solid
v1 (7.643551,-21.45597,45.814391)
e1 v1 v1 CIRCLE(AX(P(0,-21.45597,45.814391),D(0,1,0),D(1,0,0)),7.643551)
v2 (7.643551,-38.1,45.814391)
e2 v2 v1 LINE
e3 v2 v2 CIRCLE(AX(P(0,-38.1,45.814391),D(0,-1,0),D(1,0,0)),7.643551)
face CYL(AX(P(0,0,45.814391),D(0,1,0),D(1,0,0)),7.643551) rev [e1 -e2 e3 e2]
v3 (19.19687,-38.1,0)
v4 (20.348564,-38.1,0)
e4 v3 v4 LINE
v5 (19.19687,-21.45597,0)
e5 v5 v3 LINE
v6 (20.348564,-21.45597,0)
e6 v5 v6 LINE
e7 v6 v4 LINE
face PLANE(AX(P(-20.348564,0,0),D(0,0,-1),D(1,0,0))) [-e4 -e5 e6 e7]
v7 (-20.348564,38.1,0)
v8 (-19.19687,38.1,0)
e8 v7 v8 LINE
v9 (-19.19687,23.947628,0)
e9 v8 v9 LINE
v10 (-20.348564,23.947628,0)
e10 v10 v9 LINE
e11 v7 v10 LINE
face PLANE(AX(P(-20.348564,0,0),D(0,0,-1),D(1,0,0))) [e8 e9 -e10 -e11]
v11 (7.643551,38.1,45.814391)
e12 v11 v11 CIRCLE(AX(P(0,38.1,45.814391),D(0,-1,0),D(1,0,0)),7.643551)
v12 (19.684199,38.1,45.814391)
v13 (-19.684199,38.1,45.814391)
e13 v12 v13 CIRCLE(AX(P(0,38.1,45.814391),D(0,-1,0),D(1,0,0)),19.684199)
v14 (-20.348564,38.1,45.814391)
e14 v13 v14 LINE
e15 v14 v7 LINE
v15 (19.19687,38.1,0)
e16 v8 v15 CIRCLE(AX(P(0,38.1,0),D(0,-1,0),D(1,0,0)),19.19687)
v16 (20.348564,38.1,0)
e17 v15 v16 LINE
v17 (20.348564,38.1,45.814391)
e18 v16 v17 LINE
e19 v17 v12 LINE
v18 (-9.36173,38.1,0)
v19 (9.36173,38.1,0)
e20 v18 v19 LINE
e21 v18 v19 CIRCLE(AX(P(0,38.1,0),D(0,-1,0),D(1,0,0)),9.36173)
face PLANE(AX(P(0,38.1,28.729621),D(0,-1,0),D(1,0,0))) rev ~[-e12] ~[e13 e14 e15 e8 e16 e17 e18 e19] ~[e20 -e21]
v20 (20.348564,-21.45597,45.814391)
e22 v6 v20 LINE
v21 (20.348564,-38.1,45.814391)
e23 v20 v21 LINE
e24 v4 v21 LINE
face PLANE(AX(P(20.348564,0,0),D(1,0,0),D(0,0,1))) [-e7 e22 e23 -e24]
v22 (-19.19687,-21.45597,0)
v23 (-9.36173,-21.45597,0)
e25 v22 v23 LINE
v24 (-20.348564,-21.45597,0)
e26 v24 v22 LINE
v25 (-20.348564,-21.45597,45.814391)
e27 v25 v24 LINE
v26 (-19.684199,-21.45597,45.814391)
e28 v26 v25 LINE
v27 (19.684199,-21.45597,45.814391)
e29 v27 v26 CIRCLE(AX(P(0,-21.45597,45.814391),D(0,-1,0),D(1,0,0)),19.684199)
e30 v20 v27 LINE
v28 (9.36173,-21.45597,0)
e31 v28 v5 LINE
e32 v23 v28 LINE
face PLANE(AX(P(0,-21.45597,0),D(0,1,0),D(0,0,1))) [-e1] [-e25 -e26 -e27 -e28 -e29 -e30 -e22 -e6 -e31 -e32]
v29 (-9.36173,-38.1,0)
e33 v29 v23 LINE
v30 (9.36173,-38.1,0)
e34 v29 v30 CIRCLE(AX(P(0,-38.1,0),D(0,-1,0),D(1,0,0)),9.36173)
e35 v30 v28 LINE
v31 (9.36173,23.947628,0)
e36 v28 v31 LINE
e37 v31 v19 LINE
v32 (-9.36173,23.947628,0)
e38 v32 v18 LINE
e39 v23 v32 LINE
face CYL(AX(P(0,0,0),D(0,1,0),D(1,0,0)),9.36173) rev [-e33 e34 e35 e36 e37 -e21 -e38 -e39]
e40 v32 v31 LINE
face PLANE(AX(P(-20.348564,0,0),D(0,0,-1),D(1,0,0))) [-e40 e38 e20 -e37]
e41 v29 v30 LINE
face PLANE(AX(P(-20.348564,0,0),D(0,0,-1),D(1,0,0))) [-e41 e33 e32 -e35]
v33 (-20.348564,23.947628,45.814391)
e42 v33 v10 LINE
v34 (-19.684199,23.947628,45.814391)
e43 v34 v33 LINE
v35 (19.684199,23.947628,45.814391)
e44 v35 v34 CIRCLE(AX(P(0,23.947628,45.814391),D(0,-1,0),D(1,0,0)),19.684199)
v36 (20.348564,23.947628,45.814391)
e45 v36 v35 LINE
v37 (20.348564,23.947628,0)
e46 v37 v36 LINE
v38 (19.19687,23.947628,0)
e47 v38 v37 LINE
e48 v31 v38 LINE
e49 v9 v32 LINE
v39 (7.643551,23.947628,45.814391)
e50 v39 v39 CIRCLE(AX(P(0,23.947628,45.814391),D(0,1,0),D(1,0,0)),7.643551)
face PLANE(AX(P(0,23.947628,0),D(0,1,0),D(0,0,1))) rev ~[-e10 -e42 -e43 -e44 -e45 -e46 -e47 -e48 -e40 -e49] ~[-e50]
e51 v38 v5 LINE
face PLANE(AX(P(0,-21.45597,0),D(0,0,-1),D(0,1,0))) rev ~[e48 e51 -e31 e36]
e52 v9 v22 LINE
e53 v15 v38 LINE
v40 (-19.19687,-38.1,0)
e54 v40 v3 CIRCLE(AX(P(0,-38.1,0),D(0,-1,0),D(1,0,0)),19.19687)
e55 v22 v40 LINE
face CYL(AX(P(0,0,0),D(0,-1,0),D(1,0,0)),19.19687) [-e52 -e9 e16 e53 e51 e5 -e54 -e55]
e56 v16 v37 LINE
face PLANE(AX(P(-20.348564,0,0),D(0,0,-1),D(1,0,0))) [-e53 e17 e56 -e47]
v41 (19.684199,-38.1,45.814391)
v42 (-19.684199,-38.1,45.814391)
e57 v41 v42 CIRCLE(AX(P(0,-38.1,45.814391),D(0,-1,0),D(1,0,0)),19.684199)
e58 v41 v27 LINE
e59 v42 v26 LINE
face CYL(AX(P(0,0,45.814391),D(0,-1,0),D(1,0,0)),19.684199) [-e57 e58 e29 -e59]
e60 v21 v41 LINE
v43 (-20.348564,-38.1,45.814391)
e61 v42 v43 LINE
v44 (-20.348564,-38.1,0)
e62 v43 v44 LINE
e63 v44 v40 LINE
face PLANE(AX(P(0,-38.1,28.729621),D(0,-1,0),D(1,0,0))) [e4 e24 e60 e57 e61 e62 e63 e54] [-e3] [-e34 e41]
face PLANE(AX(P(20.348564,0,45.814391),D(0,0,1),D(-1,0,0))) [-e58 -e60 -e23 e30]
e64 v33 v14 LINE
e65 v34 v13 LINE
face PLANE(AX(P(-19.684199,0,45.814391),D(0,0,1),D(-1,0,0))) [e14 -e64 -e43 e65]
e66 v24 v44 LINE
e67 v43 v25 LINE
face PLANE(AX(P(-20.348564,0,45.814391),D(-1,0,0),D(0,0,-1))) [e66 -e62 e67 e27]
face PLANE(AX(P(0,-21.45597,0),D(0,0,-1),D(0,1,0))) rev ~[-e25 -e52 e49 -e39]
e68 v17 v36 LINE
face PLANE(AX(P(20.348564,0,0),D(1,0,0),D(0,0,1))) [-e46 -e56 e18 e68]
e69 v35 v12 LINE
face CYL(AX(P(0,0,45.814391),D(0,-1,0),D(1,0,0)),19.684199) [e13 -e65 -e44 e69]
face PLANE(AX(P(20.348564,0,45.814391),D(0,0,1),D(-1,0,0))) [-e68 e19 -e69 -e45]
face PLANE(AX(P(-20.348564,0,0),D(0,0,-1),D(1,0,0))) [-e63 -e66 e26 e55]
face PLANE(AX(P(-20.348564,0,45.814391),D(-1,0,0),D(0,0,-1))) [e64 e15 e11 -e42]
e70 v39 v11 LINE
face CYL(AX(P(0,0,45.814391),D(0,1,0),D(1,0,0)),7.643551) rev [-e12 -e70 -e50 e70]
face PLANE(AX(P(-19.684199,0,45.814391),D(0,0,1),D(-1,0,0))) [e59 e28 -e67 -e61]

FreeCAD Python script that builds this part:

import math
import FreeCAD as App
import Part
import Sketcher
from FreeCAD import Vector
Q = App.Units.Quantity


def add_polygon(sketch, points):
    """Adds a closed chain of lines whose ends are joined by coincident constraints."""
    first, n = sketch.GeometryCount, len(points)
    for a, b in zip(points, points[1:] + points[:1]):
        sketch.addGeometry(Part.LineSegment(App.Vector(*a, 0), App.Vector(*b, 0)), False)
    for i in range(n):
        sketch.addConstraint(Sketcher.Constraint("Coincident", first + i, 2, first + (i + 1) % n, 1))

doc = App.newDocument("Part")
body = doc.addObject("PartDesign::Body", "Body")

sketch1 = doc.addObject("Sketcher::SketchObject", "Sketch")
body.addObject(sketch1)
sketch1.AttachmentSupport = (doc.XZ_Plane, [""])
sketch1.MapMode = "FlatFace"
sketch1.addGeometry([
    Part.Circle(Vector(0, 0, 0), Vector(0, 0, 1), 19),
    Part.Circle(Vector(0, 0, 0), Vector(0, 0, 1), 9),
], False)
sketch1.addConstraint([
    Sketcher.Constraint("Coincident", 0, 3, -1, 1),
    Sketcher.Constraint("Coincident", 1, 3, -1, 1),
    Sketcher.Constraint("Diameter", 0, 38.39374),
    Sketcher.Constraint("Diameter", 1, 18.72346),
])
pad1 = doc.addObject("PartDesign::Pad", "Pad")
body.addObject(pad1)
pad1.Profile = sketch1
pad1.Length = Q("3 in")
pad1.Midplane = True

sketch2 = doc.addObject("Sketcher::SketchObject", "Sketch001")
body.addObject(sketch2)
sketch2.AttachmentSupport = (doc.XZ_Plane, [""])
sketch2.MapMode = "FlatFace"
sketch2.addGeometry([
    Part.LineSegment(Vector(-20.3, 45.8, 0), Vector(-20.3, 0, 0)),
    Part.LineSegment(Vector(-20.3, 0, 0), Vector(20.3, 0, 0)),
    Part.LineSegment(Vector(20.3, 0, 0), Vector(20.3, 45.8, 0)),
    Part.LineSegment(Vector(20.3, 45.8, 0), Vector(19.7, 45.8, 0)),
    Part.ArcOfCircle(Part.Circle(Vector(0, 45.8, 0), Vector(0, 0, 1), 19.7), math.radians(0), math.radians(180)),
    Part.LineSegment(Vector(-19.7, 45.8, 0), Vector(-20.3, 45.8, 0)),
    Part.Circle(Vector(0, 45.8, 0), Vector(0, 0, 1), 7.6),
], False)
sketch2.addConstraint([
    Sketcher.Constraint("Coincident", 0, 2, 1, 1),
    Sketcher.Constraint("Coincident", 1, 2, 2, 1),
    Sketcher.Constraint("Coincident", 2, 2, 3, 1),
    Sketcher.Constraint("Coincident", 3, 2, 4, 1),
    Sketcher.Constraint("Coincident", 4, 2, 5, 1),
    Sketcher.Constraint("Coincident", 5, 2, 0, 1),
    Sketcher.Constraint("Vertical", 0),
    Sketcher.Constraint("Horizontal", 1),
    Sketcher.Constraint("Vertical", 2),
    Sketcher.Constraint("Horizontal", 3),
    Sketcher.Constraint("Horizontal", 5),
    Sketcher.Constraint("Coincident", 6, 3, 4, 3),
    Sketcher.Constraint("Symmetric", 0, 2, 1, 2, -1, 1),
    Sketcher.Constraint("Symmetric", 3, 2, 4, 2, -2),
    Sketcher.Constraint("Horizontal", 6, 3, 2, 2),
    Sketcher.Constraint("Diameter", 6, 15.287102),
    Sketcher.Constraint("Radius", 4, 19.684199),
    Sketcher.Constraint("DistanceY", 0, 2, 0, 1, 45.814391),
    Sketcher.Constraint("DistanceX", 1, 1, 1, 2, 40.697128),
])
pad2 = doc.addObject("PartDesign::Pad", "Pad001")
body.addObject(pad2)
pad2.Profile = sketch2
pad2.Length = Q("3 in")
pad2.Midplane = True

sketch3 = doc.addObject("Sketcher::SketchObject", "Sketch002")
body.addObject(sketch3)
sketch3.AttachmentSupport = (doc.YZ_Plane, [""])
sketch3.MapMode = "FlatFace"
add_polygon(sketch3, [(-21, 66), (-21, 0), (24, 0), (24, 66)])
sketch3.addConstraint([
    Sketcher.Constraint("Vertical", 0),
    Sketcher.Constraint("Horizontal", 1),
    Sketcher.Constraint("Vertical", 2),
    Sketcher.Constraint("Horizontal", 3),
    Sketcher.Constraint("PointOnObject", 0, 2, -1),
    Sketcher.Constraint("DistanceX", 1, 1, 1, 2, 45.403598),
    Sketcher.Constraint("DistanceY", 0, 2, 0, 1, 66.301383),
    Sketcher.Constraint("DistanceX", 0, 2, -1, 1, 21.45597),
])
pocket1 = doc.addObject("PartDesign::Pocket", "Pocket")
body.addObject(pocket1)
pocket1.Profile = sketch3
pocket1.Length = Q("9 in")
pocket1.Midplane = True

doc.recompute()
